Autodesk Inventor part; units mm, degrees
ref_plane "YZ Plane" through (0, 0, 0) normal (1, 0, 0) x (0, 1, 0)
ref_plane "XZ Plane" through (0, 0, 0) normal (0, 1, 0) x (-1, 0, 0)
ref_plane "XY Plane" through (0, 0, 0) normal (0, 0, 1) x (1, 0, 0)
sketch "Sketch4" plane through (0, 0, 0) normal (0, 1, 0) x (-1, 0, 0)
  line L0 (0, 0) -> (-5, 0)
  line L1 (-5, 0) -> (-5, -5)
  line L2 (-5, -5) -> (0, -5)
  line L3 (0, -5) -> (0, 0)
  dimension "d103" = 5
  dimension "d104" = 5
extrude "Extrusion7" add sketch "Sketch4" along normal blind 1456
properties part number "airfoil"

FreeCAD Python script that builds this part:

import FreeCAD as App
import Part
import Sketcher
Q = App.Units.Quantity


def add_polygon(sketch, points):
    """Adds a closed chain of lines whose ends are joined by coincident constraints."""
    first, n = sketch.GeometryCount, len(points)
    for a, b in zip(points, points[1:] + points[:1]):
        sketch.addGeometry(Part.LineSegment(App.Vector(*a, 0), App.Vector(*b, 0)), False)
    for i in range(n):
        sketch.addConstraint(Sketcher.Constraint("Coincident", first + i, 2, first + (i + 1) % n, 1))

doc = App.newDocument("Part")
body = doc.addObject("PartDesign::Body", "Body")

# Sketch on XZ plane
sketch1 = body.newObject("Sketcher::SketchObject", "Sketch")
sketch1.AttachmentSupport = (doc.getObject("XZ_Plane"), [""])
sketch1.MapMode = "FlatFace"
add_polygon(sketch1, [(0, -5), (0, 0), (5, 0), (5, -5)])  # lines 0-3
sketch1.addConstraint(Sketcher.Constraint("Vertical", 0))
sketch1.addConstraint(Sketcher.Constraint("Horizontal", 1))
sketch1.addConstraint(Sketcher.Constraint("Vertical", 2))
sketch1.addConstraint(Sketcher.Constraint("Horizontal", 3))
sketch1.addConstraint(Sketcher.Constraint("Coincident", 0, 2, -1, 1))
sketch1.addConstraint(Sketcher.Constraint("Equal", 3, 0))
sketch1.addConstraint(Sketcher.Constraint("DistanceX", 1, 1, 1, 2, Q("5 mm")))
pad1 = body.newObject("PartDesign::Pad", "Pad")
pad1.Profile = sketch1
pad1.Length = 1456
pad1.Reversed = True

doc.recompute()
